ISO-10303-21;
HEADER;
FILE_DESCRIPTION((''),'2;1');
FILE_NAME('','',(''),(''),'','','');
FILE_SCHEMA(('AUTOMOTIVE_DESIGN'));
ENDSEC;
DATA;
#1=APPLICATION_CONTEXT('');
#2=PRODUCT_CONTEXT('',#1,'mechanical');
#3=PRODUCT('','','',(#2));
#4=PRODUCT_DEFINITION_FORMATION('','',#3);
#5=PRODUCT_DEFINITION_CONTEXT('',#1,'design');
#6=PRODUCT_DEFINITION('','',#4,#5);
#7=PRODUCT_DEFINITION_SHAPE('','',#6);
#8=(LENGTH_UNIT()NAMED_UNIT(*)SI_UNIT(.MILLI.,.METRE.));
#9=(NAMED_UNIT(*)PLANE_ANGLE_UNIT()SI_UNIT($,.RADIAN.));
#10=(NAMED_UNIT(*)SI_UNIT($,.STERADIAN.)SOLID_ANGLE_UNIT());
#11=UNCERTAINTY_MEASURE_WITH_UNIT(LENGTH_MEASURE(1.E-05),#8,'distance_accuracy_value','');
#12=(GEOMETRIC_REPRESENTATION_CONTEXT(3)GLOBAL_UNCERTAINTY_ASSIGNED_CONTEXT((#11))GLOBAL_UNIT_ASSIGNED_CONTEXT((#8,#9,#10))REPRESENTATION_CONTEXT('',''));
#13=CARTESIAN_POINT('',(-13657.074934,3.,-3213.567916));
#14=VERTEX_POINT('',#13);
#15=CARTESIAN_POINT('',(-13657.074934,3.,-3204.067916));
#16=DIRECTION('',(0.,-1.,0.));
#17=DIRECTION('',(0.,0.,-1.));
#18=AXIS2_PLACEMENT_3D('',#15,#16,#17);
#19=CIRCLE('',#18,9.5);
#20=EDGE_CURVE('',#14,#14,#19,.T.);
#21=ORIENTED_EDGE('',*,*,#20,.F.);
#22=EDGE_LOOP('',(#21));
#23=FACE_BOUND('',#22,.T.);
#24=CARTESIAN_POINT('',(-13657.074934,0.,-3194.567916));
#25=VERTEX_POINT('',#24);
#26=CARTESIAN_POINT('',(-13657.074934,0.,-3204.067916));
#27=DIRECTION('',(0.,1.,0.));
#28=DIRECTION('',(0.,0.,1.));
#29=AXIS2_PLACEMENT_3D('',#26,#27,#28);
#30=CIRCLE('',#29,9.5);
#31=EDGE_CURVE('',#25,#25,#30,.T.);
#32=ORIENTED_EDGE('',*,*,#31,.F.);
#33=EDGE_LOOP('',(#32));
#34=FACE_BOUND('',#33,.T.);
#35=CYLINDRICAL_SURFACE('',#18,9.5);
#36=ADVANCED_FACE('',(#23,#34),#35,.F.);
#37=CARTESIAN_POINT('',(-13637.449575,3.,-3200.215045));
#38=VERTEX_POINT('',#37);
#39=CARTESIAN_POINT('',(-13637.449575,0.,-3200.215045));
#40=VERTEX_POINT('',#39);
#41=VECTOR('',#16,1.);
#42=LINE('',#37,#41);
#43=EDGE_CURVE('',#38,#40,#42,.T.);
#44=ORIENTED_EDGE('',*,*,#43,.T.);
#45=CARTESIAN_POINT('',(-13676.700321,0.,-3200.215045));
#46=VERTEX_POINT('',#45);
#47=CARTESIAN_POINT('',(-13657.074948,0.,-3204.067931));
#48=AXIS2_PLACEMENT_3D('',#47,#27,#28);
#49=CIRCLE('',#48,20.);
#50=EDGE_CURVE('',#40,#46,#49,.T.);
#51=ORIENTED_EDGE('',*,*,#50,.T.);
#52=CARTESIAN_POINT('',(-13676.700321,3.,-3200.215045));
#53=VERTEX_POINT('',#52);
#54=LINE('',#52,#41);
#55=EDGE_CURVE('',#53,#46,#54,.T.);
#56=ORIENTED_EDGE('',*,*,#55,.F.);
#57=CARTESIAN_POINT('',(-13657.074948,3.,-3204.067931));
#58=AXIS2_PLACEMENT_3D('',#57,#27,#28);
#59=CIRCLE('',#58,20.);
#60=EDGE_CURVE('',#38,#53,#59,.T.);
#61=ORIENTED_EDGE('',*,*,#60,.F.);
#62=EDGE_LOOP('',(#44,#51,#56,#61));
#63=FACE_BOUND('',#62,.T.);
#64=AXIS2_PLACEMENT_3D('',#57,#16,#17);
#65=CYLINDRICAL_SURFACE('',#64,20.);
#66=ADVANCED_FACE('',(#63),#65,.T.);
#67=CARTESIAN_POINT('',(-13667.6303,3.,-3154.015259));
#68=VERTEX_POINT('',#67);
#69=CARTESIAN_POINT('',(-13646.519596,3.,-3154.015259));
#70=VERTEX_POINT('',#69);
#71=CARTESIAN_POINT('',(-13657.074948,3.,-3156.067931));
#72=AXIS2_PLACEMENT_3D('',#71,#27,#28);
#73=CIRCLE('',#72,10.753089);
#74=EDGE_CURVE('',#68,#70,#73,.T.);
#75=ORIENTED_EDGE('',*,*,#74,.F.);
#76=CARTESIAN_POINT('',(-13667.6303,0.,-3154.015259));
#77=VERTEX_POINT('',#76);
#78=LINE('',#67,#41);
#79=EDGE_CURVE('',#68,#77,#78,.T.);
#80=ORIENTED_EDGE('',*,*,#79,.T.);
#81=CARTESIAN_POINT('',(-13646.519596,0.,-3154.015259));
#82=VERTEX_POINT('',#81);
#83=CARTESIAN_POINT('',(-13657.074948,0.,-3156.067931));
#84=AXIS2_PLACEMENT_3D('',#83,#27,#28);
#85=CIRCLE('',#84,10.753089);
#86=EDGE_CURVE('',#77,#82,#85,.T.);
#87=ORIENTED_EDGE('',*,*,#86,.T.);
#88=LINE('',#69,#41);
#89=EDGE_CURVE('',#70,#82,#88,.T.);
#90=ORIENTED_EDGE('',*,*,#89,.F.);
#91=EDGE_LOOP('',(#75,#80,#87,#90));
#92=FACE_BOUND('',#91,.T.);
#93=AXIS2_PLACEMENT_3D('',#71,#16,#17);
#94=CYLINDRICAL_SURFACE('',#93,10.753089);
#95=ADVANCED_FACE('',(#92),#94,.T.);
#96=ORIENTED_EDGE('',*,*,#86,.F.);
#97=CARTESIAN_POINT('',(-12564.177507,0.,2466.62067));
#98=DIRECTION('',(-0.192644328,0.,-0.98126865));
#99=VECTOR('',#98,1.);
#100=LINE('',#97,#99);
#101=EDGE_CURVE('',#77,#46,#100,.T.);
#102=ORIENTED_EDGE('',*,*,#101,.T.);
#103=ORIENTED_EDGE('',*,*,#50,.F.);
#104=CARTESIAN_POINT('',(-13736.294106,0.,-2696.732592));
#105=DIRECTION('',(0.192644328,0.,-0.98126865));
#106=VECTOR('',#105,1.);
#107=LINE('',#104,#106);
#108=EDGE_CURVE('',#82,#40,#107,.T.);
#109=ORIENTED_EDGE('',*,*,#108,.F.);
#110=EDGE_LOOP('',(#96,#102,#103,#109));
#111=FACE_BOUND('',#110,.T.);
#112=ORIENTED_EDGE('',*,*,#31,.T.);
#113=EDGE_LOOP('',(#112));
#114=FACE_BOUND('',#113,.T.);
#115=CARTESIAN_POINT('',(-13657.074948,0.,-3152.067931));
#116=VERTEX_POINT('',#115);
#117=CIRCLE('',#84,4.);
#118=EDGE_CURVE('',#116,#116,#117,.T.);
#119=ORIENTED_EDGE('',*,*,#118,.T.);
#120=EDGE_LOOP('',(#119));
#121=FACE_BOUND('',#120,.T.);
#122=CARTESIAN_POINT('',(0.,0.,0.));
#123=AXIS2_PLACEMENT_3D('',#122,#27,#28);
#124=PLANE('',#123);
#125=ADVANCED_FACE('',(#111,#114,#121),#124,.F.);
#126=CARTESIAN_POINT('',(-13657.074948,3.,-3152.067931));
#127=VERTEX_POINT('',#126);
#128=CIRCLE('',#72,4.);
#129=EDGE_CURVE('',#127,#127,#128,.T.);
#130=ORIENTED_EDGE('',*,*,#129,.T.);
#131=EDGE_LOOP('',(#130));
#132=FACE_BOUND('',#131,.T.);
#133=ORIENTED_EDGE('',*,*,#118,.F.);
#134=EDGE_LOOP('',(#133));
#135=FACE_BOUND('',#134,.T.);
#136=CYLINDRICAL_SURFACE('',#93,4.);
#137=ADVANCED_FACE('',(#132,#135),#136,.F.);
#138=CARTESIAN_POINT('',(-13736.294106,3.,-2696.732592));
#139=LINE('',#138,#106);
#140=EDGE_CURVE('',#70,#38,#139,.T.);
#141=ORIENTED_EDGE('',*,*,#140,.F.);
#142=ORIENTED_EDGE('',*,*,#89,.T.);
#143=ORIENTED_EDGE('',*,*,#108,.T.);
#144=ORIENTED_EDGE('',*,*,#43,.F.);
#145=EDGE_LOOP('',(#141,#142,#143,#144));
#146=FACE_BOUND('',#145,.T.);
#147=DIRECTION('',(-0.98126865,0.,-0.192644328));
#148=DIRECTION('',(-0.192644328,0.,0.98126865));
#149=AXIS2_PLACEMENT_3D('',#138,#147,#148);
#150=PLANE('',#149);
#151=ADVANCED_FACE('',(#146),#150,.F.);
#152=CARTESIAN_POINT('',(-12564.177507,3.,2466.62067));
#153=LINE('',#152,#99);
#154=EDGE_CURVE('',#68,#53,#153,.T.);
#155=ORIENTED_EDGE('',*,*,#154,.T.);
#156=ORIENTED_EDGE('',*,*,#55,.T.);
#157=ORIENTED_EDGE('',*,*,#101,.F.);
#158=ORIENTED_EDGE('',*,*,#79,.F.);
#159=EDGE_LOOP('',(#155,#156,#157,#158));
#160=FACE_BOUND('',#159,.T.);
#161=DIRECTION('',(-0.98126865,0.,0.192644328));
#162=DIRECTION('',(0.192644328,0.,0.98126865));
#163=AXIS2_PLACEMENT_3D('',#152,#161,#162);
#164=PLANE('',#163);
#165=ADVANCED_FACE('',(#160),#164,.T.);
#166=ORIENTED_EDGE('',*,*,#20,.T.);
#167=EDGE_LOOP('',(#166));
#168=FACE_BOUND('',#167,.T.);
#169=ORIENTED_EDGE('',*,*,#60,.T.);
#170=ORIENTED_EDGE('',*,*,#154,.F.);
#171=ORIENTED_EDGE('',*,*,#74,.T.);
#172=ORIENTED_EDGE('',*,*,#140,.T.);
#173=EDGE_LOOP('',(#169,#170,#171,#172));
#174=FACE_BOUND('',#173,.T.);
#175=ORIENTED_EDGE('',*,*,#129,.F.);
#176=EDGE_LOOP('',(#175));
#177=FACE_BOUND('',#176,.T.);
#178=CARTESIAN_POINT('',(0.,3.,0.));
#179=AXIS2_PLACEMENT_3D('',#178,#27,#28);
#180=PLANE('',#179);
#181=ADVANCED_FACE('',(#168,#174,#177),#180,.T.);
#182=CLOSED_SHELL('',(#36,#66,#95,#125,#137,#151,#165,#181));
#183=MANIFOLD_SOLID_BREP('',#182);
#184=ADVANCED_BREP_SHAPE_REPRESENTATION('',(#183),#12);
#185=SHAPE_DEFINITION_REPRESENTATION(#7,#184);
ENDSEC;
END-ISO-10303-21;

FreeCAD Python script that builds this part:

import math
import FreeCAD as App
import Part
import Sketcher
from FreeCAD import Vector


def add_polygon(sketch, points):
    """Adds a closed chain of lines whose ends are joined by coincident constraints."""
    first, n = sketch.GeometryCount, len(points)
    for a, b in zip(points, points[1:] + points[:1]):
        sketch.addGeometry(Part.LineSegment(App.Vector(*a, 0), App.Vector(*b, 0)), False)
    for i in range(n):
        sketch.addConstraint(Sketcher.Constraint("Coincident", first + i, 2, first + (i + 1) % n, 1))

doc = App.newDocument("Part")
body = doc.addObject("PartDesign::Body", "Body")

# Sketch on XZ plane
sketch1 = body.newObject("Sketcher::SketchObject", "Sketch")
sketch1.AttachmentSupport = (doc.getObject("XZ_Plane"), [""])
sketch1.MapMode = "FlatFace"
sketch1.addGeometry(Part.LineSegment(Vector(-13676.7, -3200.2, 0), Vector(-13667.6, -3154, 0)), False)  # 0
sketch1.addGeometry(Part.ArcOfCircle(Part.Circle(Vector(-13657.1, -3156.1, 0), Vector(0, 0, 1), 10.8), math.radians(11), math.radians(169)), False)  # 1
sketch1.addGeometry(Part.LineSegment(Vector(-13646.5, -3154, 0), Vector(-13637.4, -3200.2, 0)), False)  # 2
sketch1.addGeometry(Part.ArcOfCircle(Part.Circle(Vector(-13657.1, -3204.1, 0), Vector(0, 0, 1), 20), math.radians(169), math.radians(371)), False)  # 3
sketch1.addGeometry(Part.Circle(Vector(-13657.1, -3156.1, 0), Vector(0, 0, 1), 4), False)  # 4
add_polygon(sketch1, [(-13663.1, -3198.1), (-13663.1, -3210.1), (-13651.1, -3210.1), (-13651.1, -3198.1)])  # lines 5-8
sketch1.addConstraint([
    Sketcher.Constraint("Coincident", 0, 2, 1, 2),
    Sketcher.Constraint("Coincident", 1, 1, 2, 1),
    Sketcher.Constraint("Tangent", 2, 2, 3, 2),
    Sketcher.Constraint("Tangent", 3, 1, 0, 1),
    Sketcher.Constraint("Horizontal", 6),
    Sketcher.Constraint("Coincident", 4, 3, 1, 3),
    Sketcher.Constraint("Parallel", 5, 7),
    Sketcher.Constraint("Horizontal", 0, 2, 1, 1),
    Sketcher.Constraint("Horizontal", 2, 2, 3, 1),
    Sketcher.Constraint("Diameter", 4, 8.0),
    Sketcher.Constraint("Radius", 3, 20.0),
    Sketcher.Constraint("Distance", 8, 12.000001),
    Sketcher.Constraint("DistanceY", 3, 3, 1, 3, 48.0),
    Sketcher.Constraint("Radius", 1, 10.753089),
    Sketcher.Constraint("DistanceX", 0, 2, -1, 1, 13667.6303),
    Sketcher.Constraint("DistanceX", 3, 1, 6, 2, 25.625401),
    Sketcher.Constraint("Distance", 0, 47.081689),
    Sketcher.Constraint("DistanceY", 1, 3, -1, 1, 3156.067931),
    Sketcher.Constraint("DistanceX", 7, 2, -1, 1, 13651.07495),
    Sketcher.Constraint("DistanceY", 7, 2, -1, 1, 3198.06791),
    Sketcher.Constraint("DistanceY", 8, 2, -1, 1, 3198.067969),
    Sketcher.Constraint("DistanceY", 5, 2, 3, 3, 5.999992),
])
pad1 = body.newObject("PartDesign::Pad", "Pad")
pad1.Profile = sketch1
pad1.Length = 3
pad1.Reversed = True

# Sketch on XZ plane
sketch2 = body.newObject("Sketcher::SketchObject", "Sketch001")
sketch2.AttachmentSupport = (doc.getObject("XZ_Plane"), [""])
sketch2.MapMode = "FlatFace"
sketch2.addGeometry(Part.Circle(Vector(-13657, -3204, 0), Vector(0, 0, 1), 10), False)
sketch2.addConstraint([
    Sketcher.Constraint("Diameter", 0, 19.0),
    Sketcher.Constraint("DistanceX", 0, 3, -1, 1, 13657.074934),
    Sketcher.Constraint("DistanceY", 0, 3, -1, 1, 3204.067916),
])
pocket1 = body.newObject("PartDesign::Pocket", "Pocket")
pocket1.Profile = sketch2
pocket1.Type = "ThroughAll"
pocket1.Midplane = True

doc.recompute()
